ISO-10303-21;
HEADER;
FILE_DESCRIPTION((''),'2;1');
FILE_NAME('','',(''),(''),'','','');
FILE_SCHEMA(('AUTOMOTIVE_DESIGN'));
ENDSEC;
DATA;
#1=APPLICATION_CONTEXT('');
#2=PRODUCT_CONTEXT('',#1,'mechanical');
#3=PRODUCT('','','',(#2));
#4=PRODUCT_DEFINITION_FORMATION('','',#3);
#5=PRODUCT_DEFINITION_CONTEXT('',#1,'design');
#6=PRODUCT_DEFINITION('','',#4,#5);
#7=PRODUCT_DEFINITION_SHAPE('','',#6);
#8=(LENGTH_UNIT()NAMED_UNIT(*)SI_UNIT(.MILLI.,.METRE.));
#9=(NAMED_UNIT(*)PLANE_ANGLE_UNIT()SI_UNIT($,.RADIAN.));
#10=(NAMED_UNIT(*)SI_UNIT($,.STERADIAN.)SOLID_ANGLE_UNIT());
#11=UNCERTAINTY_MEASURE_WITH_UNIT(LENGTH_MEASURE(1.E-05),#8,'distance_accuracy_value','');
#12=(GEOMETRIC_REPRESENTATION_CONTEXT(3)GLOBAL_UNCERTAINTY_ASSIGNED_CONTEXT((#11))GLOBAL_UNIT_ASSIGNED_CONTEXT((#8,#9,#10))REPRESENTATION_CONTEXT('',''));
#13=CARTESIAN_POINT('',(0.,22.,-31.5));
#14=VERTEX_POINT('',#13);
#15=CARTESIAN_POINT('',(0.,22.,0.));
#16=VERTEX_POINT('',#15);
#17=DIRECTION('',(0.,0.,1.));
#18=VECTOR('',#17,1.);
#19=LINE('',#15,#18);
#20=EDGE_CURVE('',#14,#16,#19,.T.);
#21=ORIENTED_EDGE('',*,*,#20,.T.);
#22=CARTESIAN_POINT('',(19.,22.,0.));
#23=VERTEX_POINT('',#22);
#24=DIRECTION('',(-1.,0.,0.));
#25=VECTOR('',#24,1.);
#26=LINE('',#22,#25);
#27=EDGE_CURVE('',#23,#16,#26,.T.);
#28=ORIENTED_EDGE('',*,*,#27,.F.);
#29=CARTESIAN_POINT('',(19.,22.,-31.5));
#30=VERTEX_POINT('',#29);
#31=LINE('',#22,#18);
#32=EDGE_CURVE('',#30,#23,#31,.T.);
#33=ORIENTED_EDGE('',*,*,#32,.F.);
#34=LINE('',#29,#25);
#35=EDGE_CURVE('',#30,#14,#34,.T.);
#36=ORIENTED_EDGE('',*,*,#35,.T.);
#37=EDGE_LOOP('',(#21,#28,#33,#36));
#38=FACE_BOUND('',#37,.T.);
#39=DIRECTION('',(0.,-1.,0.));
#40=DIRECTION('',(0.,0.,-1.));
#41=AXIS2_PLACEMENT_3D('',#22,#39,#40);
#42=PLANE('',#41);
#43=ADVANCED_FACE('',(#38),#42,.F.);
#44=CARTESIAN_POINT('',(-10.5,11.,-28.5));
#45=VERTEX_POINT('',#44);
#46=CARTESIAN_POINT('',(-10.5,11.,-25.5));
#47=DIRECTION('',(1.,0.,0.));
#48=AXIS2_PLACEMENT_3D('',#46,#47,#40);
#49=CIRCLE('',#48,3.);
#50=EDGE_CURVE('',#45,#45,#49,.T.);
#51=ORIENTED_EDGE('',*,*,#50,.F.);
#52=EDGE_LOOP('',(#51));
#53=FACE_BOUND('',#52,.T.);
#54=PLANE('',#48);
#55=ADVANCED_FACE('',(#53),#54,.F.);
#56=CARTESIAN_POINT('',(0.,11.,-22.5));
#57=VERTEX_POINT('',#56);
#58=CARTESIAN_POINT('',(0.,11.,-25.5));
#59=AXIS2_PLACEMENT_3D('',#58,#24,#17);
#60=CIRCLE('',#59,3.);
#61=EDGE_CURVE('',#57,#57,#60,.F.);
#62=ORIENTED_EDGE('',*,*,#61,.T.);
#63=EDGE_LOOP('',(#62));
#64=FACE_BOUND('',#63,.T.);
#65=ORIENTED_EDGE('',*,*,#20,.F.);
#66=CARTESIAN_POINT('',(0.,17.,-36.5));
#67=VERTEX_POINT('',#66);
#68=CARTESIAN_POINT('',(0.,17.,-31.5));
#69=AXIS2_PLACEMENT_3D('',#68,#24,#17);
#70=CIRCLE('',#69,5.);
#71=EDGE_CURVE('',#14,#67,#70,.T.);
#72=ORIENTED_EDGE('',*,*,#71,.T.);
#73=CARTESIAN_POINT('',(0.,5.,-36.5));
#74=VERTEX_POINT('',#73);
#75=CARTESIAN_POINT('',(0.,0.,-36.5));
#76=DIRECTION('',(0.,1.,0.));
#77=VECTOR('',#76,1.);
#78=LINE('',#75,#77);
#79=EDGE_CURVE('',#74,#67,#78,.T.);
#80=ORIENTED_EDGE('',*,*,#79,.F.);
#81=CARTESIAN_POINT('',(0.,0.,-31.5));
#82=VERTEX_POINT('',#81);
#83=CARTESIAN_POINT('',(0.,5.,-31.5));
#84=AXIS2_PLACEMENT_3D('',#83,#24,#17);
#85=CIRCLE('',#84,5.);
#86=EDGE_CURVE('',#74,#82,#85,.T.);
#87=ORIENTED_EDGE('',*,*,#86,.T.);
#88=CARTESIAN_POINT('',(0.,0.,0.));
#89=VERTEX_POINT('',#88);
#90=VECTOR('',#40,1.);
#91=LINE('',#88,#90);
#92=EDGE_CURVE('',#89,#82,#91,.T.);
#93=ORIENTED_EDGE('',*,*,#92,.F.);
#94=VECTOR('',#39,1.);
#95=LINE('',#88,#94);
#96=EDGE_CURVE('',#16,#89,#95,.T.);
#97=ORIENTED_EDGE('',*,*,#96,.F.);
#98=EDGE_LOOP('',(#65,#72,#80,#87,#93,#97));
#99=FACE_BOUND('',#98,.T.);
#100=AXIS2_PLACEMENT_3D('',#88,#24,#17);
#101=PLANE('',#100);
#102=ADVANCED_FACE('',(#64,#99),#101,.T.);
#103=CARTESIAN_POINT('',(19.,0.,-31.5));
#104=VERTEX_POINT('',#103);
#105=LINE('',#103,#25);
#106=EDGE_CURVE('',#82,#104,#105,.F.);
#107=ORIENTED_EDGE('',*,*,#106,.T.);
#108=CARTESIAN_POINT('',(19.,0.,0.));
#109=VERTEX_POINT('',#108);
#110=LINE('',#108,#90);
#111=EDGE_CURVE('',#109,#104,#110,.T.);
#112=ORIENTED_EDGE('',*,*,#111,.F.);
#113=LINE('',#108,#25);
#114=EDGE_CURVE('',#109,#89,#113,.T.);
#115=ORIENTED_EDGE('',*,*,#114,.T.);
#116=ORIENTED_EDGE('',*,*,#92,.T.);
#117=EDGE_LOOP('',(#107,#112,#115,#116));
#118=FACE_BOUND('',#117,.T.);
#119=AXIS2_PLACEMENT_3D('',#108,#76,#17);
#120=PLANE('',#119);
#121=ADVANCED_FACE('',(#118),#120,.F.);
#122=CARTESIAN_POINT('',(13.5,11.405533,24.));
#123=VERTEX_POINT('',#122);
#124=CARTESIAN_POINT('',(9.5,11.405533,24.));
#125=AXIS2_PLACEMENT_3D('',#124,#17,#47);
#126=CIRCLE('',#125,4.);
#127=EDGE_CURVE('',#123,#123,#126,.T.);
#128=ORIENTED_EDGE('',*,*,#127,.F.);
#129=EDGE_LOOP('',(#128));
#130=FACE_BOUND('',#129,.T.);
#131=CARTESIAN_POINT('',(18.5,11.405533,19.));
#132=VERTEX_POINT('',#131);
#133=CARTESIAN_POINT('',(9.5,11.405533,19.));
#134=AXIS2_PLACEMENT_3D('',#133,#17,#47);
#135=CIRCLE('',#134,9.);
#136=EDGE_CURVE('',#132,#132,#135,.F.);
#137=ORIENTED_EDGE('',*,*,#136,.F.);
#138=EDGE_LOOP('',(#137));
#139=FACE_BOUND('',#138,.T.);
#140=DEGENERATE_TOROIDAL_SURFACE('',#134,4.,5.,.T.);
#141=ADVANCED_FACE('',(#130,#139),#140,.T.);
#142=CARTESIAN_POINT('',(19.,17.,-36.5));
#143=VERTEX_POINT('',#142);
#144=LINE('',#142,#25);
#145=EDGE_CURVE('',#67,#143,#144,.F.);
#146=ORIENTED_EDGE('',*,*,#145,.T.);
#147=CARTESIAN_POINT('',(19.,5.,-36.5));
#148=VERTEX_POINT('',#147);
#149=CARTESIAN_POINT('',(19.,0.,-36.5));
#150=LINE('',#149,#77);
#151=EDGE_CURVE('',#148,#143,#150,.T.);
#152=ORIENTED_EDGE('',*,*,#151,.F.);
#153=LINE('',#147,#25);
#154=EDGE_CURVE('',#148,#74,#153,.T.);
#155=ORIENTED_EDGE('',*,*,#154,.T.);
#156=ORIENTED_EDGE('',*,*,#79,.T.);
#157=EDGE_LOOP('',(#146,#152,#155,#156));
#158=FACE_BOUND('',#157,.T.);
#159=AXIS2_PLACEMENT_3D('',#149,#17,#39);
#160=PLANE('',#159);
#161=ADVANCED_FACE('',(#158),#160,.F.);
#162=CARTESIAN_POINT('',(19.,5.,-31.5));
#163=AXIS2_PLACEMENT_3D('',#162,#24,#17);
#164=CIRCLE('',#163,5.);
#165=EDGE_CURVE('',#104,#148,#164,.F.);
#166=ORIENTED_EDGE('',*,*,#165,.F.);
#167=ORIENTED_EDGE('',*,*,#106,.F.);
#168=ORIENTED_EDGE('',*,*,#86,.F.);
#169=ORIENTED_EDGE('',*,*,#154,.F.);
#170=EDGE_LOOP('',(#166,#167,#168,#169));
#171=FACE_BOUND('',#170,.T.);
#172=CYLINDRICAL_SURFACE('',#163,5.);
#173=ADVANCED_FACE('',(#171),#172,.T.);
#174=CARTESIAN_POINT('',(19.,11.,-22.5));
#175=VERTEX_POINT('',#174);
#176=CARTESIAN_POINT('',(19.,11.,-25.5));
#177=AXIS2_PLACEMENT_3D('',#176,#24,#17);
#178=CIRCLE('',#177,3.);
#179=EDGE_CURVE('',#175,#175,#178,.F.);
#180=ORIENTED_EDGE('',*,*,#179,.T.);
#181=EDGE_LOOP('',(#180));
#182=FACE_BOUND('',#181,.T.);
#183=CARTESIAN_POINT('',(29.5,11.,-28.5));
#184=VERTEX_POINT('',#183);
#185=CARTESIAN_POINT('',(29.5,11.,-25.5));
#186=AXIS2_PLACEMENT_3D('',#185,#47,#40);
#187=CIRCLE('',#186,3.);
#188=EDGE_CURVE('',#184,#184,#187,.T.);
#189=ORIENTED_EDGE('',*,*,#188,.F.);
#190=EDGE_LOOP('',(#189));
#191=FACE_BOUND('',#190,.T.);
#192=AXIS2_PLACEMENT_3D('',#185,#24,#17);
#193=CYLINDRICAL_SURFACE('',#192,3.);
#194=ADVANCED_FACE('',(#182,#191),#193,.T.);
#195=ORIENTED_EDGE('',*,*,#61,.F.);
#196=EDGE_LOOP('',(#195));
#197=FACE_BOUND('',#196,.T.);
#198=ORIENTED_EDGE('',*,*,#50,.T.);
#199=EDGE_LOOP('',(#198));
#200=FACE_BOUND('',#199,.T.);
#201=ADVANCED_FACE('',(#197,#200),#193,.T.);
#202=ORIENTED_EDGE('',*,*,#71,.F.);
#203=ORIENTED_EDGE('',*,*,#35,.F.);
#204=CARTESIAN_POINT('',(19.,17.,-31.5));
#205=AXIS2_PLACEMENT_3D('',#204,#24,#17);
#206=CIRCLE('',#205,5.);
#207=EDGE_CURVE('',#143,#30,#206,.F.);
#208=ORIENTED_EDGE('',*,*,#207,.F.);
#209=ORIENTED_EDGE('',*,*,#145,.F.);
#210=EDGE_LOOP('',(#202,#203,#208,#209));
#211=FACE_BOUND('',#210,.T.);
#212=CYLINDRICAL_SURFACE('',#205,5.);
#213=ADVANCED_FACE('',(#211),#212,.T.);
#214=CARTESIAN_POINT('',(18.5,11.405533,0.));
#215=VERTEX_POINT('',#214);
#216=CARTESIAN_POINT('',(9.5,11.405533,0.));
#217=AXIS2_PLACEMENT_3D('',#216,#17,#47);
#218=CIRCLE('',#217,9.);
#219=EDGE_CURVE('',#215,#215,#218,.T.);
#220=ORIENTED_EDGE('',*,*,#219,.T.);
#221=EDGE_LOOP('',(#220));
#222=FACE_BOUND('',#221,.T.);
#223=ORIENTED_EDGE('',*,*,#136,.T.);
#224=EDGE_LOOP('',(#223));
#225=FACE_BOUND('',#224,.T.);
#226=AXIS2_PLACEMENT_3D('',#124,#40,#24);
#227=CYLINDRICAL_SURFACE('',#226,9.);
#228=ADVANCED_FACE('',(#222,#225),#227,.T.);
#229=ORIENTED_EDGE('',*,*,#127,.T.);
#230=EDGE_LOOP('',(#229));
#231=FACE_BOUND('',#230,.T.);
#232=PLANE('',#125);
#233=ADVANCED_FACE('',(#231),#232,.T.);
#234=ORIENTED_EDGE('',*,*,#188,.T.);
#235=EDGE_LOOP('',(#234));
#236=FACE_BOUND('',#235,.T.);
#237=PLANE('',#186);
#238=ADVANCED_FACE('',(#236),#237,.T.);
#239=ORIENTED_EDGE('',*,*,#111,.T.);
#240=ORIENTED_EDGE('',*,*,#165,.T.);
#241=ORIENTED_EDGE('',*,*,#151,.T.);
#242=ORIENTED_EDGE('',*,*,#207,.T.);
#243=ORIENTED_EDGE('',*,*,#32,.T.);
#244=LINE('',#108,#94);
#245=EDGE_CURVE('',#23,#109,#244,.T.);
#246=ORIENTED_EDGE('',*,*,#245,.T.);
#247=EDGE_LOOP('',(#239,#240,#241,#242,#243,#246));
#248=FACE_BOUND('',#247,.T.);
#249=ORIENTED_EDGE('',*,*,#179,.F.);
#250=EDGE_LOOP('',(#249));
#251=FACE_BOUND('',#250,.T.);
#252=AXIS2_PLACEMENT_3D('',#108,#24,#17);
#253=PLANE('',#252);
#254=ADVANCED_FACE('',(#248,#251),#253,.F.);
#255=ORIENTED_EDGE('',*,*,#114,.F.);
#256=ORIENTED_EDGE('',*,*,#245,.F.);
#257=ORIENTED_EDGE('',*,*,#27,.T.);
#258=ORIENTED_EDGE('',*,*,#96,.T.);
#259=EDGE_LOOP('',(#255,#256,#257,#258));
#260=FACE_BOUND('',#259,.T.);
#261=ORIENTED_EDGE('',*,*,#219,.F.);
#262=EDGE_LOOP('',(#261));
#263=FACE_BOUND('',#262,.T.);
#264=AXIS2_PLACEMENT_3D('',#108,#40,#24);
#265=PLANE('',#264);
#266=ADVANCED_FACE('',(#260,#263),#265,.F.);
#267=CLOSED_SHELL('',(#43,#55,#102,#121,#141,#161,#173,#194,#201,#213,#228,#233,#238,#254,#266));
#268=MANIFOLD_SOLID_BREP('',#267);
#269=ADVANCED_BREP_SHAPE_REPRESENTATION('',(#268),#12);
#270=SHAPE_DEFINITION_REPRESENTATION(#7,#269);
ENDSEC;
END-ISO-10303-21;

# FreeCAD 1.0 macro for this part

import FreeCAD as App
import Part
import Sketcher
from FreeCAD import Vector
Q = App.Units.Quantity


def edges_at(feature, points):
    """Names of the edges that pass closest to the given points."""
    edges = feature.Shape.Edges
    near = lambda p: min(range(len(edges)), key=lambda i: edges[i].distToShape(Part.Vertex(*p))[0])
    return sorted({f"Edge{near(p) + 1}" for p in points})

doc = App.newDocument("Part")
params = doc.addObject("Spreadsheet::Sheet", "Params")
for row, (alias, value) in enumerate([
    ("sketch1_width", "22 mm"),
    ("sketch1_height", "36.5 mm"),
    ("pad1_length", "19 mm"),
    ("sketch2_diameter", "6 mm"),
    ("pad2_length", "40 mm"),
    ("fillet_radius", "5 mm"),
    ("sketch3_diameter", "18 mm"),
    ("pad3_length", "24 mm"),
    ("fillet2_radius", "5 mm"),
], start=1):
    params.set(f"A{row}", alias)
    params.set(f"B{row}", "=" + value)
    params.setAlias(f"B{row}", alias)

body = doc.addObject("PartDesign::Body", "Body")

# Sketch on YZ plane
sketch1 = body.newObject("Sketcher::SketchObject", "Sketch")
sketch1.AttachmentSupport = (doc.getObject("YZ_Plane"), [""])
sketch1.MapMode = "FlatFace"
sketch1.addGeometry([
    Part.LineSegment(Vector(22, 0, 0), Vector(0, 0, 0)),
    Part.LineSegment(Vector(0, 0, 0), Vector(0, -36, 0)),
    Part.LineSegment(Vector(0, -36, 0), Vector(22, -36, 0)),
    Part.LineSegment(Vector(22, -36, 0), Vector(22, 0, 0)),
], False)
sketch1.addConstraint([
    Sketcher.Constraint("Coincident", 0, 2, 1, 1),
    Sketcher.Constraint("Coincident", 1, 2, 2, 1),
    Sketcher.Constraint("Coincident", 2, 2, 3, 1),
    Sketcher.Constraint("Coincident", 3, 2, 0, 1),
    Sketcher.Constraint("Horizontal", 0),
    Sketcher.Constraint("Vertical", 1),
    Sketcher.Constraint("Horizontal", 2),
    Sketcher.Constraint("Vertical", 3),
    Sketcher.Constraint("Coincident", 0, 2, -1, 1),
    Sketcher.Constraint("DistanceX", 0, 2, 0, 1, Q("22 mm")),
    Sketcher.Constraint("DistanceY", 1, 2, 1, 1, Q("36.5 mm")),
])
sketch1.setExpression("Constraints[9]", "Params.sketch1_width")
sketch1.setExpression("Constraints[10]", "Params.sketch1_height")
pad1 = body.newObject("PartDesign::Pad", "Pad")
pad1.Profile = sketch1
pad1.setExpression("Length", "Params.pad1_length")

# Sketch on YZ plane
sketch2 = body.newObject("Sketcher::SketchObject", "Sketch001")
sketch2.AttachmentSupport = (doc.getObject("YZ_Plane"), [""])
sketch2.MapMode = "FlatFace"
sketch2.AttachmentOffset = App.Placement(Vector(0, 0, 9.5), App.Rotation())
sketch2.addGeometry(Part.Circle(Vector(11, -25.5, 0), Vector(0, 0, 1), 3), False)
sketch2.addConstraint([
    Sketcher.Constraint("Diameter", 0, Q("6 mm")),
    Sketcher.Constraint("DistanceX", -1, 1, 0, 3, Q("11 mm")),
    Sketcher.Constraint("DistanceY", 0, 3, -1, 1, Q("25.5 mm")),
])
sketch2.setExpression("Constraints[0]", "Params.sketch2_diameter")
pad2 = body.newObject("PartDesign::Pad", "Pad001")
pad2.Profile = sketch2
pad2.setExpression("Length", "Params.pad2_length")
pad2.Midplane = True
doc.recompute()

fillet = body.newObject("PartDesign::Fillet", "Fillet")
fillet.Base = (pad2, edges_at(pad2, [(9.5, 22, -36.5), (9.5, 0, -36.5)]))
fillet.setExpression("Radius", "Params.fillet_radius")

# Sketch on XY plane
sketch3 = body.newObject("Sketcher::SketchObject", "Sketch002")
sketch3.AttachmentSupport = (doc.getObject("XY_Plane"), [""])
sketch3.MapMode = "FlatFace"
sketch3.addGeometry(Part.Circle(Vector(10, 11, 0), Vector(0, 0, 1), 9), False)
sketch3.addConstraint([
    Sketcher.Constraint("Diameter", 0, Q("18 mm")),
    Sketcher.Constraint("DistanceX", -1, 1, 0, 3, Q("9.5 mm")),
    Sketcher.Constraint("DistanceY", -1, 1, 0, 3, Q("11.405533 mm")),
])
sketch3.setExpression("Constraints[0]", "Params.sketch3_diameter")
pad3 = body.newObject("PartDesign::Pad", "Pad002")
pad3.Profile = sketch3
pad3.setExpression("Length", "Params.pad3_length")
doc.recompute()

fillet2 = body.newObject("PartDesign::Fillet", "Fillet001")
fillet2.Base = (pad3, edges_at(pad3, [(0.5, 11.406, 24)]))
fillet2.setExpression("Radius", "Params.fillet2_radius")

doc.recompute()
